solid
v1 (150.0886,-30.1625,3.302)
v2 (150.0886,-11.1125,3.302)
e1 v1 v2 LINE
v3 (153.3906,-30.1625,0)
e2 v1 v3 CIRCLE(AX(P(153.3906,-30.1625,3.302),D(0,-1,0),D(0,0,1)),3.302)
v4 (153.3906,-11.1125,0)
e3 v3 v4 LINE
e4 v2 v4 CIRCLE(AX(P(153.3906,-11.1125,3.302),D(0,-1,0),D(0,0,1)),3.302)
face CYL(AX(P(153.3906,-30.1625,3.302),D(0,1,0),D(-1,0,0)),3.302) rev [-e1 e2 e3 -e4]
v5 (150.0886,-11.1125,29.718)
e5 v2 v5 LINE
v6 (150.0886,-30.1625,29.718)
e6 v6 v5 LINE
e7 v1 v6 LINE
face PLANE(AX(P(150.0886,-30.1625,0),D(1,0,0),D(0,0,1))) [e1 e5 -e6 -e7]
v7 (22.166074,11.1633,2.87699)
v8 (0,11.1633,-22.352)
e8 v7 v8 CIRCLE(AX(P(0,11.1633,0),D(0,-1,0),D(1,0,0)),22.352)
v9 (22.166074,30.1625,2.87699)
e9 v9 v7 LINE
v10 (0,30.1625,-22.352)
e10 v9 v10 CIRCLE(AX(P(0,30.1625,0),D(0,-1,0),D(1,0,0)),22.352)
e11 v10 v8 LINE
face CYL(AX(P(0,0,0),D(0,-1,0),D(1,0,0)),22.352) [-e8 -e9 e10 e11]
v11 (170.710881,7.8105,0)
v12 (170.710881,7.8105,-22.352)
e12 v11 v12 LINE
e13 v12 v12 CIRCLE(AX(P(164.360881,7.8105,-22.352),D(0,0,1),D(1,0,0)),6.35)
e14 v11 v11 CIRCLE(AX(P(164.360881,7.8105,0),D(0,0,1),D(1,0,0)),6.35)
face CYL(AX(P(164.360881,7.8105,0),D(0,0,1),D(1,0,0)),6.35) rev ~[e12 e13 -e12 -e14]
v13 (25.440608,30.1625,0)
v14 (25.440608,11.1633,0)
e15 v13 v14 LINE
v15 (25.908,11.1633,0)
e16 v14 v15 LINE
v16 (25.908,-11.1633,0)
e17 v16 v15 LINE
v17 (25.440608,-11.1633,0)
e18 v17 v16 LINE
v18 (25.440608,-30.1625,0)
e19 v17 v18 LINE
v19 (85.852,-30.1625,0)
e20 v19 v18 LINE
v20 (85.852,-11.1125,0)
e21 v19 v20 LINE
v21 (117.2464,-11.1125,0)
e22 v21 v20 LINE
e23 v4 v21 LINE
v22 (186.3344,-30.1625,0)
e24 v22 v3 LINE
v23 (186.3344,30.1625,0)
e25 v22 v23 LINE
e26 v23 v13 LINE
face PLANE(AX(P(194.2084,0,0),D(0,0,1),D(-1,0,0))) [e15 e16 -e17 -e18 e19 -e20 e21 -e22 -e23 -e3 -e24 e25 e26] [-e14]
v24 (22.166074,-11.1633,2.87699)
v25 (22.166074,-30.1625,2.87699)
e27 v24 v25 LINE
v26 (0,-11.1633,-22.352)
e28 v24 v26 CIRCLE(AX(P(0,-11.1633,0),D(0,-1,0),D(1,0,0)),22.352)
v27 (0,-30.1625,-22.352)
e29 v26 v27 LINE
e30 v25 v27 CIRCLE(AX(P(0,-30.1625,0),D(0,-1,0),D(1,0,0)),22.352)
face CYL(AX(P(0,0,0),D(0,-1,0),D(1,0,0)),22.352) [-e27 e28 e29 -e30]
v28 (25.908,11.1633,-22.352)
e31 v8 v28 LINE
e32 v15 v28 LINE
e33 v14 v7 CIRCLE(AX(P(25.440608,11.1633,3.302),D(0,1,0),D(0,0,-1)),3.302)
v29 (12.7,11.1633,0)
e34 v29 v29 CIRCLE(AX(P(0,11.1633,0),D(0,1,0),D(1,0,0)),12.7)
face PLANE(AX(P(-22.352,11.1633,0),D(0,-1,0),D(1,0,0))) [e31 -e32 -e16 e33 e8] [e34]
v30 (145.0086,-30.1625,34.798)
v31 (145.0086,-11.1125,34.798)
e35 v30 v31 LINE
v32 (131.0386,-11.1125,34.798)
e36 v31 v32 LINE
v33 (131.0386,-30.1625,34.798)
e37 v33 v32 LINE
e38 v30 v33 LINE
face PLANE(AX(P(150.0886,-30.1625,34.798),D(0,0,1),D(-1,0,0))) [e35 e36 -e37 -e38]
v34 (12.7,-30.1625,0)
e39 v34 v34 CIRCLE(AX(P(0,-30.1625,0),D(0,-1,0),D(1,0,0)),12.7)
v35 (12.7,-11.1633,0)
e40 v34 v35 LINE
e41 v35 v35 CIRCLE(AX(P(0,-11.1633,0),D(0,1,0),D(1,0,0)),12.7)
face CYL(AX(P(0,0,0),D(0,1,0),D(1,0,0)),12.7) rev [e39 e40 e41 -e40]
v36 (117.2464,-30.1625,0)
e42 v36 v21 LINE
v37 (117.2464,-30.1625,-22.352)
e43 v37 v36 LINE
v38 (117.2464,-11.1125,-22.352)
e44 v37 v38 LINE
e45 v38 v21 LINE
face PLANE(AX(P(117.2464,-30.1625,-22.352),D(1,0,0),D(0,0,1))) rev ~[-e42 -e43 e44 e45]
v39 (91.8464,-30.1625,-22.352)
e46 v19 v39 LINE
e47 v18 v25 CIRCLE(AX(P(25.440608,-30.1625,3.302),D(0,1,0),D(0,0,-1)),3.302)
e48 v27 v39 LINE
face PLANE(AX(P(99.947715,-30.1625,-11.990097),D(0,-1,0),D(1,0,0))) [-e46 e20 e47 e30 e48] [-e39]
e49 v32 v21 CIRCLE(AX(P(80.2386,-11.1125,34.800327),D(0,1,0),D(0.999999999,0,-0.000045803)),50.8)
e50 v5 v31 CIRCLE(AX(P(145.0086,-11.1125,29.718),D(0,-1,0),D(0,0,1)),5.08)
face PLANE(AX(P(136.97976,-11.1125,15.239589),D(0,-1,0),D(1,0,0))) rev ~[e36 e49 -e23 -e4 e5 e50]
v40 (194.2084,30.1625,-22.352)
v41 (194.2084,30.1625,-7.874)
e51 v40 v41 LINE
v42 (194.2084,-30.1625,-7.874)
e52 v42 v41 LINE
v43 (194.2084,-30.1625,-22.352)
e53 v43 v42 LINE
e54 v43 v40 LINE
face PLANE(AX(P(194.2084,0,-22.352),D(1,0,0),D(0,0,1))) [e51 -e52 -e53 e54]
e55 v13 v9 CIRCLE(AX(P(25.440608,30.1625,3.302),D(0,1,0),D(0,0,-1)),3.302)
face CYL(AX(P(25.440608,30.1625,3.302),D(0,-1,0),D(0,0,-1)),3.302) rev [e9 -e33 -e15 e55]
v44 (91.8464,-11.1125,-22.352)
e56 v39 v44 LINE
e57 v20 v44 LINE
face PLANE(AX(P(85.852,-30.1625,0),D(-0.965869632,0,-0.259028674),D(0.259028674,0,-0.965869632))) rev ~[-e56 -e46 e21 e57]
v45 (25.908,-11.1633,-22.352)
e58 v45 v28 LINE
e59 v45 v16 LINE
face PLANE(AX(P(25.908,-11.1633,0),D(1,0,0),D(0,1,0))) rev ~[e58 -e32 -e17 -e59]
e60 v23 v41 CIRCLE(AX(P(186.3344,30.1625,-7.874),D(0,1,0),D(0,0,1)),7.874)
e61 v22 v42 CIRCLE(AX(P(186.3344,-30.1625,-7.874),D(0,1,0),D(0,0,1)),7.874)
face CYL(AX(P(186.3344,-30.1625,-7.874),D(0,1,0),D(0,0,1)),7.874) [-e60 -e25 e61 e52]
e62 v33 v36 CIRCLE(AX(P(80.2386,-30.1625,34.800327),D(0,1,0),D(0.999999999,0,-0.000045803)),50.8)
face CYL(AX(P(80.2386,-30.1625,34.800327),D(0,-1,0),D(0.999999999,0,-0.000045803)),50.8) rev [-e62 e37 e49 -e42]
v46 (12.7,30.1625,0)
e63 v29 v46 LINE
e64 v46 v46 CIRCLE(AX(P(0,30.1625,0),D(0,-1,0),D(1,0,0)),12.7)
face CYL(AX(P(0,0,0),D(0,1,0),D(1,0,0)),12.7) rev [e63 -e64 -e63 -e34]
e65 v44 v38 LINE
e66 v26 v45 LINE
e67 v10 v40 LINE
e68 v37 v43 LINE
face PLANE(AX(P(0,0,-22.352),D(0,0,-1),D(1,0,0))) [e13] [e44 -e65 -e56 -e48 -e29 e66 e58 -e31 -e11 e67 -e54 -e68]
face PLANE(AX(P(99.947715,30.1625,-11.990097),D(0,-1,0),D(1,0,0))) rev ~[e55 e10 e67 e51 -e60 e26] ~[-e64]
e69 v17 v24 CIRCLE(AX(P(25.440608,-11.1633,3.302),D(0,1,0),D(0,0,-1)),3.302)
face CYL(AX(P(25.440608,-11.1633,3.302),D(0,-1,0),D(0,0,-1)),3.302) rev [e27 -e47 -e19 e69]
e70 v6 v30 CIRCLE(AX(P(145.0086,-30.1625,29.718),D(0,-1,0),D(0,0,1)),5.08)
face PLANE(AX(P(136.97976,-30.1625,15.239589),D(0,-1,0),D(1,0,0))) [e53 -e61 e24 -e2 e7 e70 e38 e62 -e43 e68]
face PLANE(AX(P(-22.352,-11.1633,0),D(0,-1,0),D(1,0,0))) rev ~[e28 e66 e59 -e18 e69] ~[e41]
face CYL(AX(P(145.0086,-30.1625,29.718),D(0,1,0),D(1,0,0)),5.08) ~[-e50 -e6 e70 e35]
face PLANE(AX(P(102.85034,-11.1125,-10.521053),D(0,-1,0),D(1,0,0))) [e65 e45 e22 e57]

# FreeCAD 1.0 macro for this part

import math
import FreeCAD as App
import Part
import Sketcher
Q = App.Units.Quantity


def edges_at(feature, points):
    """Names of the edges that pass closest to the given points."""
    edges = feature.Shape.Edges
    near = lambda p: min(range(len(edges)), key=lambda i: edges[i].distToShape(Part.Vertex(*p))[0])
    return sorted({f"Edge{near(p) + 1}" for p in points})

doc = App.newDocument("Part")
body = doc.addObject("PartDesign::Body", "Body")

sketch1 = doc.addObject("Sketcher::SketchObject", "Sketch")
body.addObject(sketch1)
sketch1.AttachmentSupport = (doc.XZ_Plane, [""])
sketch1.MapMode = "FlatFace"
sketch1.addGeometry(Part.LineSegment(App.Vector(194.2084, 0, 0), App.Vector(22.352, 0, 0)), False)
sketch1.addGeometry(Part.ArcOfCircle(Part.Circle(App.Vector(0, 0, 0), App.Vector(0, 0, 1), 22.352), math.radians(0), math.radians(270)), False)
sketch1.addGeometry(Part.LineSegment(App.Vector(0, -22.352, 0), App.Vector(194.2084, -22.352, 0)), False)
sketch1.addGeometry(Part.LineSegment(App.Vector(194.2084, -22.352, 0), App.Vector(194.2084, 0, 0)), False)
sketch1.addGeometry(Part.Circle(App.Vector(0, 0, 0), App.Vector(0, 0, 1), 12.7), False)
sketch1.addConstraint(Sketcher.Constraint("Coincident", 0, 2, 1, 1))
sketch1.addConstraint(Sketcher.Constraint("Tangent", 1, 2, 2, 1))
sketch1.addConstraint(Sketcher.Constraint("Coincident", 2, 2, 3, 1))
sketch1.addConstraint(Sketcher.Constraint("Coincident", 3, 2, 0, 1))
sketch1.addConstraint(Sketcher.Constraint("Horizontal", 0))
sketch1.addConstraint(Sketcher.Constraint("Horizontal", 2))
sketch1.addConstraint(Sketcher.Constraint("Vertical", 3))
sketch1.addConstraint(Sketcher.Constraint("Coincident", 1, 3, -1, 1))
sketch1.addConstraint(Sketcher.Constraint("Coincident", 4, 3, -1, 1))
sketch1.addConstraint(Sketcher.Constraint("PointOnObject", 0, 2, -1))
sketch1.addConstraint(Sketcher.Constraint("Diameter", 4, Q("1 in")))
sketch1.addConstraint(Sketcher.Constraint("Radius", 1, Q("0.88 in")))
sketch1.addConstraint(Sketcher.Constraint("DistanceX", 0, 2, 0, 1, Q("6.766 in")))
pad1 = doc.addObject("PartDesign::Pad", "Pad")
body.addObject(pad1)
pad1.Profile = sketch1
pad1.Length = Q("2.375 in")
pad1.Midplane = True

sketch2 = doc.addObject("Sketcher::SketchObject", "Sketch001")
body.addObject(sketch2)
sketch2.AttachmentSupport = (doc.XY_Plane, [""])
sketch2.MapMode = "FlatFace"
sketch2.addGeometry(Part.LineSegment(App.Vector(-22.352, 11.1633, 0), App.Vector(-22.352, -11.1633, 0)), False)
sketch2.addGeometry(Part.LineSegment(App.Vector(-22.352, -11.1633, 0), App.Vector(25.908, -11.1633, 0)), False)
sketch2.addGeometry(Part.LineSegment(App.Vector(25.908, -11.1633, 0), App.Vector(25.908, 11.1633, 0)), False)
sketch2.addGeometry(Part.LineSegment(App.Vector(25.908, 11.1633, 0), App.Vector(-22.352, 11.1633, 0)), False)
sketch2.addConstraint(Sketcher.Constraint("Coincident", 0, 2, 1, 1))
sketch2.addConstraint(Sketcher.Constraint("Coincident", 1, 2, 2, 1))
sketch2.addConstraint(Sketcher.Constraint("Coincident", 2, 2, 3, 1))
sketch2.addConstraint(Sketcher.Constraint("Coincident", 3, 2, 0, 1))
sketch2.addConstraint(Sketcher.Constraint("Vertical", 0))
sketch2.addConstraint(Sketcher.Constraint("Horizontal", 1))
sketch2.addConstraint(Sketcher.Constraint("Vertical", 2))
sketch2.addConstraint(Sketcher.Constraint("Horizontal", 3))
sketch2.addConstraint(Sketcher.Constraint("DistanceX", 1, 1, 1, 2, Q("1.9 in")))
sketch2.addConstraint(Sketcher.Constraint("DistanceY", 0, 2, 0, 1, Q("0.879 in")))
sketch2.addConstraint(Sketcher.Constraint("DistanceX", 0, 2, -1, 1, Q("0.88 in")))
sketch2.addConstraint(Sketcher.Constraint("DistanceY", 0, 2, -1, 1, Q("0.4395 in")))
pocket1 = doc.addObject("PartDesign::Pocket", "Pocket")
body.addObject(pocket1)
pocket1.Profile = sketch2
pocket1.Length = Q("1.76 in")
pocket1.Midplane = True

sketch3 = doc.addObject("Sketcher::SketchObject", "Sketch002")
body.addObject(sketch3)
sketch3.AttachmentSupport = (doc.XZ_Plane, [""])
sketch3.MapMode = "FlatFace"
sketch3.AttachmentOffset = App.Placement(App.Vector(0, 0, 1.1875 * 25.4), App.Rotation())
sketch3.addGeometry(Part.LineSegment(App.Vector(85.852, 0, 0), App.Vector(91.8464, -22.352, 0)), False)
sketch3.addGeometry(Part.LineSegment(App.Vector(91.8464, -22.352, 0), App.Vector(117.2464, -22.352, 0)), False)
sketch3.addGeometry(Part.LineSegment(App.Vector(117.2464, -22.352, 0), App.Vector(117.2464, 0, 0)), False)
sketch3.addGeometry(Part.LineSegment(App.Vector(117.2464, 0, 0), App.Vector(85.852, 0, 0)), False)
sketch3.addConstraint(Sketcher.Constraint("Coincident", 0, 2, 1, 1))
sketch3.addConstraint(Sketcher.Constraint("Coincident", 1, 2, 2, 1))
sketch3.addConstraint(Sketcher.Constraint("Coincident", 2, 2, 3, 1))
sketch3.addConstraint(Sketcher.Constraint("Coincident", 3, 2, 0, 1))
sketch3.addConstraint(Sketcher.Constraint("Horizontal", 1))
sketch3.addConstraint(Sketcher.Constraint("Vertical", 2))
sketch3.addConstraint(Sketcher.Constraint("Horizontal", 3))
sketch3.addConstraint(Sketcher.Constraint("PointOnObject", 2, 2, -1))
sketch3.addConstraint(Sketcher.Constraint("DistanceX", 1, 1, 1, 2, Q("1 in")))
sketch3.addConstraint(Sketcher.Constraint("DistanceY", 2, 1, 2, 2, Q("0.88 in")))
sketch3.addConstraint(Sketcher.Constraint("DistanceX", 3, 2, 3, 1, Q("1.236 in")))
sketch3.addConstraint(Sketcher.Constraint("DistanceX", -1, 1, 3, 2, Q("3.38 in")))
pocket2 = doc.addObject("PartDesign::Pocket", "Pocket001")
body.addObject(pocket2)
pocket2.Profile = sketch3
pocket2.Length = Q("0.75 in")

sketch4 = doc.addObject("Sketcher::SketchObject", "Sketch003")
body.addObject(sketch4)
sketch4.AttachmentSupport = (doc.XZ_Plane, [""])
sketch4.MapMode = "FlatFace"
sketch4.AttachmentOffset = App.Placement(App.Vector(0, 0, 1.1875 * 25.4), App.Rotation())
sketch4.addGeometry(Part.LineSegment(App.Vector(117.2464, 0, 0), App.Vector(150.0886, 0, 0)), False)
sketch4.addGeometry(Part.LineSegment(App.Vector(150.0886, 0, 0), App.Vector(150.0886, 34.798, 0)), False)
sketch4.addGeometry(Part.LineSegment(App.Vector(150.0886, 34.798, 0), App.Vector(131.0386, 34.798, 0)), False)
sketch4.addGeometry(Part.ArcOfCircle(Part.Circle(App.Vector(80.2386, 34.800327, 0), App.Vector(0, 0, 1), 50.8), math.radians(-43.239209), math.radians(-0.002624)), False)
sketch4.addConstraint(Sketcher.Constraint("Coincident", 0, 2, 1, 1))
sketch4.addConstraint(Sketcher.Constraint("Coincident", 1, 2, 2, 1))
sketch4.addConstraint(Sketcher.Constraint("Coincident", 2, 2, 3, 2))
sketch4.addConstraint(Sketcher.Constraint("Coincident", 3, 1, 0, 1))
sketch4.addConstraint(Sketcher.Constraint("Horizontal", 0))
sketch4.addConstraint(Sketcher.Constraint("Vertical", 1))
sketch4.addConstraint(Sketcher.Constraint("Horizontal", 2))
sketch4.addConstraint(Sketcher.Constraint("PointOnObject", 0, 2, -1))
sketch4.addConstraint(Sketcher.Constraint("Radius", 3, Q("2 in")))
sketch4.addConstraint(Sketcher.Constraint("DistanceX", 2, 2, 2, 1, Q("0.75 in")))
sketch4.addConstraint(Sketcher.Constraint("DistanceY", 1, 1, 1, 2, Q("1.37 in")))
sketch4.addConstraint(Sketcher.Constraint("DistanceX", 0, 1, 0, 2, Q("1.293 in")))
sketch4.addConstraint(Sketcher.Constraint("DistanceX", -1, 1, 3, 3, Q("3.159 in")))
pad2 = doc.addObject("PartDesign::Pad", "Pad001")
body.addObject(pad2)
pad2.Profile = sketch4
pad2.Length = Q("0.75 in")
pad2.Reversed = True

sketch5 = doc.addObject("Sketcher::SketchObject", "Sketch004")
body.addObject(sketch5)
sketch5.AttachmentSupport = (doc.XY_Plane, [""])
sketch5.MapMode = "FlatFace"
sketch5.addGeometry(Part.Circle(App.Vector(164.360881, 7.8105, 0), App.Vector(0, 0, 1), 6.35), False)
sketch5.addConstraint(Sketcher.Constraint("Diameter", 0, Q("0.5 in")))
sketch5.addConstraint(Sketcher.Constraint("DistanceY", -1, 1, 0, 3, Q("0.3075 in")))
sketch5.addConstraint(Sketcher.Constraint("DistanceX", -1, 1, 0, 3, 164.360881))
pocket3 = doc.addObject("PartDesign::Pocket", "Pocket002")
body.addObject(pocket3)
pocket3.Profile = sketch5
pocket3.Type = "ThroughAll"
doc.recompute()

fillet = doc.addObject("PartDesign::Fillet", "Fillet")
body.addObject(fillet)
fillet.Base = (pocket3, edges_at(pocket3, [(22.352, -20.663, 0), (150.089, -20.637, 0), (22.352, 20.663, 0)]))
fillet.Radius = Q("0.13 in")
doc.recompute()

fillet2 = doc.addObject("PartDesign::Fillet", "Fillet001")
body.addObject(fillet2)
fillet2.Base = (fillet, edges_at(fillet, [(194.208, 0, 0)]))
fillet2.Radius = Q("0.31 in")
doc.recompute()

fillet3 = doc.addObject("PartDesign::Fillet", "Fillet002")
body.addObject(fillet3)
fillet3.Base = (fillet2, edges_at(fillet2, [(150.089, -20.637, 34.798)]))
fillet3.Radius = Q("0.2 in")

doc.recompute()
